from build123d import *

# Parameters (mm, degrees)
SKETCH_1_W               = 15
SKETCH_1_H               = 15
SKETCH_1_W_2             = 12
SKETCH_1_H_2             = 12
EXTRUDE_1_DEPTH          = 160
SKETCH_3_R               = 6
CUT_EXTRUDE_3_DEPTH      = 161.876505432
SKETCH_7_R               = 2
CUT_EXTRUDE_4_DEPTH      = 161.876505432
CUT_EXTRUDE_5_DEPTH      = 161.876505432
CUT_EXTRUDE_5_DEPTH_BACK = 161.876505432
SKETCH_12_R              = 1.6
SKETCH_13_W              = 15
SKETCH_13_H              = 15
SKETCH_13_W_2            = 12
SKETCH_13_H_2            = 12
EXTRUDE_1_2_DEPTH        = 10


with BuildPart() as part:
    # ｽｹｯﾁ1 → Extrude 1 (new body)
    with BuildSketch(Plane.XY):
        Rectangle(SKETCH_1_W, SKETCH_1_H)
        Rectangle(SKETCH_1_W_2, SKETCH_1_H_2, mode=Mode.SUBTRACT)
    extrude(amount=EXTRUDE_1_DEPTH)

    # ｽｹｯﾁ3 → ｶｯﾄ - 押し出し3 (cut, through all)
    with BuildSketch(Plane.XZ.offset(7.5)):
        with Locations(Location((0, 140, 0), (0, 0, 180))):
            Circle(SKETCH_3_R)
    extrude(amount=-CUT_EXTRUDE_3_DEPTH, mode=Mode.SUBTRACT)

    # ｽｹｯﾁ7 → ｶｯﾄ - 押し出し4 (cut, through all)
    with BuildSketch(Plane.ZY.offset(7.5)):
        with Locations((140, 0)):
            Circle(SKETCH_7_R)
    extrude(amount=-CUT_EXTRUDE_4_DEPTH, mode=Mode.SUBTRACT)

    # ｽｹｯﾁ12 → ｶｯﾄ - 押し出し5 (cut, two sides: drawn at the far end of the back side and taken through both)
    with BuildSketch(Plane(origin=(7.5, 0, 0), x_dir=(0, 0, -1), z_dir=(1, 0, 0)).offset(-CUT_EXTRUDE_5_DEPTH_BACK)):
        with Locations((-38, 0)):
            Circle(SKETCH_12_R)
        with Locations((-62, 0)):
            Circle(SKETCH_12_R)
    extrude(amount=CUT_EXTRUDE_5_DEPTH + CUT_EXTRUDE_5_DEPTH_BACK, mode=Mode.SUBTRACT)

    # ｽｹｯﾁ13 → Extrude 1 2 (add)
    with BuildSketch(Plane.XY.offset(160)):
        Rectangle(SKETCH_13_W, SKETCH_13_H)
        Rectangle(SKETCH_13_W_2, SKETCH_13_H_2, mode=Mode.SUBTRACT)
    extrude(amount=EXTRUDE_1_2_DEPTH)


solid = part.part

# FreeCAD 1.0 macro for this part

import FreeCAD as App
import Part
import Sketcher
from FreeCAD import Vector

doc = App.newDocument("Part")
body = doc.addObject("PartDesign::Body", "Body")

# Sketch on XY plane
sketch1 = doc.addObject("Sketcher::SketchObject", "Sketch")
body.addObject(sketch1)
sketch1.AttachmentSupport = (doc.XY_Plane, [""])
sketch1.MapMode = "FlatFace"
sketch1.addGeometry(Part.LineSegment(Vector(-8, 8, 0), Vector(-8, -8, 0)), False)
sketch1.addGeometry(Part.LineSegment(Vector(-8, -8, 0), Vector(8, -8, 0)), False)
sketch1.addGeometry(Part.LineSegment(Vector(8, -8, 0), Vector(8, 8, 0)), False)
sketch1.addGeometry(Part.LineSegment(Vector(8, 8, 0), Vector(-8, 8, 0)), False)
sketch1.addGeometry(Part.LineSegment(Vector(6, -6, 0), Vector(-6, -6, 0)), False)
sketch1.addGeometry(Part.LineSegment(Vector(-6, -6, 0), Vector(-6, 6, 0)), False)
sketch1.addGeometry(Part.LineSegment(Vector(-6, 6, 0), Vector(6, 6, 0)), False)
sketch1.addGeometry(Part.LineSegment(Vector(6, 6, 0), Vector(6, -6, 0)), False)
sketch1.addConstraint(Sketcher.Constraint("Coincident", 0, 2, 1, 1))
sketch1.addConstraint(Sketcher.Constraint("Coincident", 1, 2, 2, 1))
sketch1.addConstraint(Sketcher.Constraint("Coincident", 2, 2, 3, 1))
sketch1.addConstraint(Sketcher.Constraint("Coincident", 3, 2, 0, 1))
sketch1.addConstraint(Sketcher.Constraint("Coincident", 4, 2, 5, 1))
sketch1.addConstraint(Sketcher.Constraint("Coincident", 5, 2, 6, 1))
sketch1.addConstraint(Sketcher.Constraint("Coincident", 6, 2, 7, 1))
sketch1.addConstraint(Sketcher.Constraint("Coincident", 7, 2, 4, 1))
sketch1.addConstraint(Sketcher.Constraint("Vertical", 0))
sketch1.addConstraint(Sketcher.Constraint("Horizontal", 1))
sketch1.addConstraint(Sketcher.Constraint("Vertical", 2))
sketch1.addConstraint(Sketcher.Constraint("Horizontal", 3))
sketch1.addConstraint(Sketcher.Constraint("Horizontal", 4))
sketch1.addConstraint(Sketcher.Constraint("Vertical", 5))
sketch1.addConstraint(Sketcher.Constraint("Horizontal", 6))
sketch1.addConstraint(Sketcher.Constraint("Vertical", 7))
sketch1.addConstraint(Sketcher.Constraint("Symmetric", 0, 2, 2, 2, -1, 1))
sketch1.addConstraint(Sketcher.Constraint("Symmetric", 4, 2, 6, 2, -1, 1))
sketch1.addConstraint(Sketcher.Constraint("Equal", 3, 0))
sketch1.addConstraint(Sketcher.Constraint("Equal", 6, 5))
sketch1.addConstraint(Sketcher.Constraint("DistanceX", 1, 1, 1, 2, 15.0))
sketch1.addConstraint(Sketcher.Constraint("DistanceX", 4, 2, 4, 1, 12.0))
pad1 = doc.addObject("PartDesign::Pad", "Pad")
body.addObject(pad1)
pad1.Profile = sketch1
pad1.Length = 160

# Sketch on XZ plane
sketch2 = doc.addObject("Sketcher::SketchObject", "Sketch001")
body.addObject(sketch2)
sketch2.AttachmentSupport = (doc.XZ_Plane, [""])
sketch2.MapMode = "FlatFace"
sketch2.AttachmentOffset = App.Placement(Vector(0, 0, 7.5), App.Rotation())
sketch2.addGeometry(Part.Circle(Vector(0, 140, 0), Vector(0, 0, 1), 6), False)
sketch2.addConstraint(Sketcher.Constraint("PointOnObject", 0, 3, -2))
sketch2.addConstraint(Sketcher.Constraint("Diameter", 0, 12.0))
sketch2.addConstraint(Sketcher.Constraint("DistanceY", -1, 1, 0, 3, 140.0))
pocket1 = doc.addObject("PartDesign::Pocket", "Pocket")
body.addObject(pocket1)
pocket1.Profile = sketch2
pocket1.Type = "ThroughAll"

# Sketch on YZ plane
sketch3 = doc.addObject("Sketcher::SketchObject", "Sketch002")
body.addObject(sketch3)
sketch3.AttachmentSupport = (doc.YZ_Plane, [""])
sketch3.MapMode = "FlatFace"
sketch3.AttachmentOffset = App.Placement(Vector(0, 0, -7.5), App.Rotation())
sketch3.addGeometry(Part.Circle(Vector(0, 140, 0), Vector(0, 0, 1), 2), False)
sketch3.addConstraint(Sketcher.Constraint("PointOnObject", 0, 3, -2))
sketch3.addConstraint(Sketcher.Constraint("Diameter", 0, 4.0))
sketch3.addConstraint(Sketcher.Constraint("DistanceY", -1, 1, 0, 3, 140.0))
pocket2 = doc.addObject("PartDesign::Pocket", "Pocket001")
body.addObject(pocket2)
pocket2.Profile = sketch3
pocket2.Type = "ThroughAll"
pocket2.Reversed = True

# Sketch on YZ plane
sketch4 = doc.addObject("Sketcher::SketchObject", "Sketch003")
body.addObject(sketch4)
sketch4.AttachmentSupport = (doc.YZ_Plane, [""])
sketch4.MapMode = "FlatFace"
sketch4.AttachmentOffset = App.Placement(Vector(0, 0, 7.5), App.Rotation())
sketch4.addGeometry(Part.Circle(Vector(0, 38, 0), Vector(0, 0, 1), 1.6), False)
sketch4.addGeometry(Part.Circle(Vector(0, 62, 0), Vector(0, 0, 1), 1.6), False)
sketch4.addConstraint(Sketcher.Constraint("Equal", 0, 1))
sketch4.addConstraint(Sketcher.Constraint("PointOnObject", 0, 3, -2))
sketch4.addConstraint(Sketcher.Constraint("PointOnObject", 1, 3, -2))
sketch4.addConstraint(Sketcher.Constraint("Diameter", 0, 3.2))
sketch4.addConstraint(Sketcher.Constraint("DistanceY", -1, 1, 0, 3, 38.0))
sketch4.addConstraint(Sketcher.Constraint("DistanceY", -1, 1, 1, 3, 62.0))
pocket3 = doc.addObject("PartDesign::Pocket", "Pocket002")
body.addObject(pocket3)
pocket3.Profile = sketch4
pocket3.Type = "ThroughAll"
pocket3.Midplane = True

# Sketch on XY plane
sketch5 = doc.addObject("Sketcher::SketchObject", "Sketch004")
body.addObject(sketch5)
sketch5.AttachmentSupport = (doc.XY_Plane, [""])
sketch5.MapMode = "FlatFace"
sketch5.AttachmentOffset = App.Placement(Vector(0, 0, 160), App.Rotation())
sketch5.addGeometry(Part.LineSegment(Vector(-8, 8, 0), Vector(-8, -8, 0)), False)
sketch5.addGeometry(Part.LineSegment(Vector(-8, -8, 0), Vector(8, -8, 0)), False)
sketch5.addGeometry(Part.LineSegment(Vector(8, -8, 0), Vector(8, 8, 0)), False)
sketch5.addGeometry(Part.LineSegment(Vector(8, 8, 0), Vector(-8, 8, 0)), False)
sketch5.addGeometry(Part.LineSegment(Vector(6, -6, 0), Vector(-6, -6, 0)), False)
sketch5.addGeometry(Part.LineSegment(Vector(-6, -6, 0), Vector(-6, 6, 0)), False)
sketch5.addGeometry(Part.LineSegment(Vector(-6, 6, 0), Vector(6, 6, 0)), False)
sketch5.addGeometry(Part.LineSegment(Vector(6, 6, 0), Vector(6, -6, 0)), False)
sketch5.addConstraint(Sketcher.Constraint("Coincident", 0, 2, 1, 1))
sketch5.addConstraint(Sketcher.Constraint("Coincident", 1, 2, 2, 1))
sketch5.addConstraint(Sketcher.Constraint("Coincident", 2, 2, 3, 1))
sketch5.addConstraint(Sketcher.Constraint("Coincident", 3, 2, 0, 1))
sketch5.addConstraint(Sketcher.Constraint("Coincident", 4, 2, 5, 1))
sketch5.addConstraint(Sketcher.Constraint("Coincident", 5, 2, 6, 1))
sketch5.addConstraint(Sketcher.Constraint("Coincident", 6, 2, 7, 1))
sketch5.addConstraint(Sketcher.Constraint("Coincident", 7, 2, 4, 1))
sketch5.addConstraint(Sketcher.Constraint("Vertical", 0))
sketch5.addConstraint(Sketcher.Constraint("Horizontal", 1))
sketch5.addConstraint(Sketcher.Constraint("Vertical", 2))
sketch5.addConstraint(Sketcher.Constraint("Horizontal", 3))
sketch5.addConstraint(Sketcher.Constraint("Horizontal", 4))
sketch5.addConstraint(Sketcher.Constraint("Vertical", 5))
sketch5.addConstraint(Sketcher.Constraint("Horizontal", 6))
sketch5.addConstraint(Sketcher.Constraint("Vertical", 7))
sketch5.addConstraint(Sketcher.Constraint("Symmetric", 0, 2, 2, 2, -1, 1))
sketch5.addConstraint(Sketcher.Constraint("Symmetric", 4, 2, 6, 2, -1, 1))
sketch5.addConstraint(Sketcher.Constraint("Equal", 3, 0))
sketch5.addConstraint(Sketcher.Constraint("Equal", 6, 5))
sketch5.addConstraint(Sketcher.Constraint("DistanceX", 1, 1, 1, 2, 15.0))
sketch5.addConstraint(Sketcher.Constraint("DistanceX", 4, 2, 4, 1, 12.0))
pad2 = doc.addObject("PartDesign::Pad", "Pad001")
body.addObject(pad2)
pad2.Profile = sketch5
pad2.Length = 10

doc.recompute()
